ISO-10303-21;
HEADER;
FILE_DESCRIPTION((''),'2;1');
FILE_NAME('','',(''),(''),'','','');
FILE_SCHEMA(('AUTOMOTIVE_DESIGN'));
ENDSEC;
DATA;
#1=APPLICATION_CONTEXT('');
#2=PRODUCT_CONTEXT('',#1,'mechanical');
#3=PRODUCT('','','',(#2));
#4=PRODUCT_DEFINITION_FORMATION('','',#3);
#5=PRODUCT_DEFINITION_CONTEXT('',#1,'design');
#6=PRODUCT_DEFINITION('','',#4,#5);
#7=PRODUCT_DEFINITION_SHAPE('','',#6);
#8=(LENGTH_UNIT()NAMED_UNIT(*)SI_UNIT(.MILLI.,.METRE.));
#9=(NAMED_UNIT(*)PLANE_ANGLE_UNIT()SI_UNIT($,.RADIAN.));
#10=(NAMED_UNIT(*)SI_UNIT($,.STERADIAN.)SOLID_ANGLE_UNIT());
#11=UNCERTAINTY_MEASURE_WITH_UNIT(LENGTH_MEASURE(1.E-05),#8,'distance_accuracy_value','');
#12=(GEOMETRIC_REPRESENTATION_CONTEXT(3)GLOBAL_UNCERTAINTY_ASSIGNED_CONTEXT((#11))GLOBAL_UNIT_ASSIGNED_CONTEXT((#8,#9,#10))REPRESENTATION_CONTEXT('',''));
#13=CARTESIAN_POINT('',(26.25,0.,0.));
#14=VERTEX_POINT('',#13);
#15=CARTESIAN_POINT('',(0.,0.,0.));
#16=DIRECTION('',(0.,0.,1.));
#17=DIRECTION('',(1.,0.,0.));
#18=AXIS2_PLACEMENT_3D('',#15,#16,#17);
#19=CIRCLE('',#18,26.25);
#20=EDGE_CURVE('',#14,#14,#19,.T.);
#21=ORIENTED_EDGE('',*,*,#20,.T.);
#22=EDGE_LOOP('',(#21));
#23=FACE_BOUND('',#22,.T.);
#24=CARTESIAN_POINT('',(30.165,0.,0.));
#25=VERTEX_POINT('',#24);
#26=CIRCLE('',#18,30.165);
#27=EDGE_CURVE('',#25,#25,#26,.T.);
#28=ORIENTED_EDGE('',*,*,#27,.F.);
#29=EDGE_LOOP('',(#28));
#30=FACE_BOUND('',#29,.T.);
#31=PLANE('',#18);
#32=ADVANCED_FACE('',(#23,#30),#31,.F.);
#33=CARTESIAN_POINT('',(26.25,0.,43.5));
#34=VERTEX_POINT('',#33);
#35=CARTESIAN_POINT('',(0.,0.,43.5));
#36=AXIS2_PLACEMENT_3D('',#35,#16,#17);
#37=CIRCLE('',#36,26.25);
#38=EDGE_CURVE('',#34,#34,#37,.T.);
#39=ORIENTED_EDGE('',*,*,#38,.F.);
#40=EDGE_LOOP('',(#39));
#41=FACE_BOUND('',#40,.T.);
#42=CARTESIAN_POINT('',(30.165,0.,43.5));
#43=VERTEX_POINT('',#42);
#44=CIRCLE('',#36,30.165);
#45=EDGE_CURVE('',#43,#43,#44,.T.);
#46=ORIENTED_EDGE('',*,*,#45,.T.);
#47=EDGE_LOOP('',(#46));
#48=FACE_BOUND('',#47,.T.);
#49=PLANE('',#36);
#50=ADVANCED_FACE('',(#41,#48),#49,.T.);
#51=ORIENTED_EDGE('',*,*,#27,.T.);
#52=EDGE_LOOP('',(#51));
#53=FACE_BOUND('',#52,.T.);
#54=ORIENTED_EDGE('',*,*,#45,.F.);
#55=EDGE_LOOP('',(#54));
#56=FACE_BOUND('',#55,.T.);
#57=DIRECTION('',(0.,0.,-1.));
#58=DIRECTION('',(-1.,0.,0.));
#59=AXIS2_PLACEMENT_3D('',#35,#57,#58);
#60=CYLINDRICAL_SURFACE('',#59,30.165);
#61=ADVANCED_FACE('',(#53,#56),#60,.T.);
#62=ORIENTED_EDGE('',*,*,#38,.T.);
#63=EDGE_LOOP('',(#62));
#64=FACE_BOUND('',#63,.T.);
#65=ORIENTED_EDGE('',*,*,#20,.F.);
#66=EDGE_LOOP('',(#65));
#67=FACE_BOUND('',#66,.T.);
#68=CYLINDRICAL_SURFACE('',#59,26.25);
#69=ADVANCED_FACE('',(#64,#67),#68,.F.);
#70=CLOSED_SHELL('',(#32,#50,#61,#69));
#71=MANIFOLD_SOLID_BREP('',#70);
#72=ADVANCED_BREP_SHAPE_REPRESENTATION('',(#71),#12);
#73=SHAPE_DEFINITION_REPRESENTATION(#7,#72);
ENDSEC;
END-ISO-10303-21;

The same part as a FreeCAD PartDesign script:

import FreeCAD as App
import Part
import Sketcher
Q = App.Units.Quantity

doc = App.newDocument("Part")
params = doc.addObject("Spreadsheet::Sheet", "Params")
for row, (alias, value) in enumerate([
    ("sketch1_diameter", "52.5 mm"),
    ("sketch1_diameter2", "60.33 mm"),
    ("pad1_length", "43.5 mm"),
], start=1):
    params.set(f"A{row}", alias)
    params.set(f"B{row}", "=" + value)
    params.setAlias(f"B{row}", alias)

body = doc.addObject("PartDesign::Body", "Body")

sketch1 = body.newObject("Sketcher::SketchObject", "Sketch")
sketch1.AttachmentSupport = (doc.getObject("XY_Plane"), [""])
sketch1.MapMode = "FlatFace"
sketch1.addGeometry(Part.Circle(App.Vector(0, 0, 0), App.Vector(0, 0, 1), 30), False)
sketch1.addGeometry(Part.Circle(App.Vector(0, 0, 0), App.Vector(0, 0, 1), 26), False)
sketch1.addConstraint(Sketcher.Constraint("Coincident", 0, 3, -1, 1))
sketch1.addConstraint(Sketcher.Constraint("Coincident", 1, 3, -1, 1))
sketch1.addConstraint(Sketcher.Constraint("Diameter", 1, Q("52.5 mm")))
sketch1.addConstraint(Sketcher.Constraint("Diameter", 0, Q("60.33 mm")))
sketch1.setExpression("Constraints[2]", "Params.sketch1_diameter")
sketch1.setExpression("Constraints[3]", "Params.sketch1_diameter2")
pad1 = body.newObject("PartDesign::Pad", "Pad")
pad1.Profile = sketch1
pad1.setExpression("Length", "Params.pad1_length")

doc.recompute()
